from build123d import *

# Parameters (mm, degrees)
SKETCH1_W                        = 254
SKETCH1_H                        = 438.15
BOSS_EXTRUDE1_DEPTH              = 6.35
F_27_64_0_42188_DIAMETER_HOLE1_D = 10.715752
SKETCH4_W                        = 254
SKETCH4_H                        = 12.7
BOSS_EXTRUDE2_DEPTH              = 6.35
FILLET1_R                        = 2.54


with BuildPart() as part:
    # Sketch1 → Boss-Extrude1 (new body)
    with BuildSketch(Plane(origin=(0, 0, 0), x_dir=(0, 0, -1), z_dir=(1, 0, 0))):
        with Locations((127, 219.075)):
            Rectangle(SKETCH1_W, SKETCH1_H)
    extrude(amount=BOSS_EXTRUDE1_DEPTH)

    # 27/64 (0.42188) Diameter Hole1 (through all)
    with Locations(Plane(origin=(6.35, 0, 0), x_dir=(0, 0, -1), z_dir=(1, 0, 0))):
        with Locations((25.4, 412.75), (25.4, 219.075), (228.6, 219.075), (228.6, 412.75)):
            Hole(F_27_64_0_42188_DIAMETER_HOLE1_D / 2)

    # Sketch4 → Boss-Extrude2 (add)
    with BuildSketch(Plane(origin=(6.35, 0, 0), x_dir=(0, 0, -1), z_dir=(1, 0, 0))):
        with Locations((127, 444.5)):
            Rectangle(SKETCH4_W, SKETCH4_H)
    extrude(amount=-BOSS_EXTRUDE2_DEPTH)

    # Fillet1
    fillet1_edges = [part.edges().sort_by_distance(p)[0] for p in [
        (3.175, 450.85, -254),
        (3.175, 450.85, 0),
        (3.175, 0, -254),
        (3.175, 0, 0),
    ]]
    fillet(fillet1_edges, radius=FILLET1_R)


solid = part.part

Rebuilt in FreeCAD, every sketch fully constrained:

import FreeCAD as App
import Part
import Sketcher
Q = App.Units.Quantity


def edges_at(feature, points):
    """Names of the edges that pass closest to the given points."""
    edges = feature.Shape.Edges
    near = lambda p: min(range(len(edges)), key=lambda i: edges[i].distToShape(Part.Vertex(*p))[0])
    return sorted({f"Edge{near(p) + 1}" for p in points})


def add_polygon(sketch, points):
    """Adds a closed chain of lines whose ends are joined by coincident constraints."""
    first, n = sketch.GeometryCount, len(points)
    for a, b in zip(points, points[1:] + points[:1]):
        sketch.addGeometry(Part.LineSegment(App.Vector(*a, 0), App.Vector(*b, 0)), False)
    for i in range(n):
        sketch.addConstraint(Sketcher.Constraint("Coincident", first + i, 2, first + (i + 1) % n, 1))

doc = App.newDocument("Part")
params = doc.addObject("Spreadsheet::Sheet", "Params")
for row, (alias, value) in enumerate([
    ("sketch1_height", "10 in"),
    ("sketch1_width", "17.25 in"),
    ("pad1_length", "0.25 in"),
    ("hole_diameter", "10.715752 mm"),
    ("sketch3_height", "10 in"),
    ("sketch3_width", "0.5 in"),
    ("pad2_length", "0.25 in"),
    ("fillet_radius", "0.1 in"),
], start=1):
    params.set(f"A{row}", alias)
    params.set(f"B{row}", "=" + value)
    params.setAlias(f"B{row}", alias)

body = doc.addObject("PartDesign::Body", "Body")

sketch1 = doc.addObject("Sketcher::SketchObject", "Sketch")
body.addObject(sketch1)
sketch1.AttachmentSupport = (doc.YZ_Plane, [""])
sketch1.MapMode = "FlatFace"
add_polygon(sketch1, [(438, 0), (0, 0), (0, -254), (438, -254)])
sketch1.addConstraint(Sketcher.Constraint("Horizontal", 0))
sketch1.addConstraint(Sketcher.Constraint("Vertical", 1))
sketch1.addConstraint(Sketcher.Constraint("Horizontal", 2))
sketch1.addConstraint(Sketcher.Constraint("Vertical", 3))
sketch1.addConstraint(Sketcher.Constraint("Coincident", 0, 2, -1, 1))
sketch1.addConstraint(Sketcher.Constraint("DistanceY", 1, 2, 1, 1, Q("10 in")))
sketch1.addConstraint(Sketcher.Constraint("DistanceX", 0, 2, 0, 1, Q("17.25 in")))
sketch1.setExpression("Constraints[9]", "Params.sketch1_height")
sketch1.setExpression("Constraints[10]", "Params.sketch1_width")
pad1 = doc.addObject("PartDesign::Pad", "Pad")
body.addObject(pad1)
pad1.Profile = sketch1
pad1.setExpression("Length", "Params.pad1_length")

sketch2 = doc.addObject("Sketcher::SketchObject", "Sketch001")
body.addObject(sketch2)
sketch2.AttachmentSupport = (doc.YZ_Plane, [""])
sketch2.MapMode = "FlatFace"
sketch2.AttachmentOffset = App.Placement(App.Vector(0, 0, 0.25 * 25.4), App.Rotation())
sketch2.addGeometry(Part.Circle(App.Vector(413, -25, 0), App.Vector(0, 0, 1), 5), False)
sketch2.addGeometry(Part.Circle(App.Vector(219, -25, 0), App.Vector(0, 0, 1), 5), False)
sketch2.addGeometry(Part.Circle(App.Vector(219, -229, 0), App.Vector(0, 0, 1), 5), False)
sketch2.addGeometry(Part.Circle(App.Vector(413, -229, 0), App.Vector(0, 0, 1), 5), False)
sketch2.addConstraint(Sketcher.Constraint("Equal", 0, 1))
sketch2.addConstraint(Sketcher.Constraint("Equal", 1, 2))
sketch2.addConstraint(Sketcher.Constraint("Equal", 2, 3))
sketch2.addConstraint(Sketcher.Constraint("Horizontal", 0, 3, 1, 3))
sketch2.addConstraint(Sketcher.Constraint("Horizontal", 2, 3, 3, 3))
sketch2.addConstraint(Sketcher.Constraint("Vertical", 1, 3, 2, 3))
sketch2.addConstraint(Sketcher.Constraint("Vertical", 0, 3, 3, 3))
sketch2.addConstraint(Sketcher.Constraint("DistanceY", 0, 3, -1, 1, Q("1 in")))
sketch2.addConstraint(Sketcher.Constraint("DistanceY", 2, 3, -1, 1, Q("9 in")))
sketch2.addConstraint(Sketcher.Constraint("DistanceX", -1, 1, 0, 3, Q("16.25 in")))
sketch2.addConstraint(Sketcher.Constraint("DistanceX", -1, 1, 1, 3, Q("8.625 in")))
sketch2.addConstraint(Sketcher.Constraint("Diameter", 0, Q("10.715752 mm")))
doc.recompute()
hole = doc.addObject("PartDesign::Hole", "Hole")
body.addObject(hole)
hole.Profile = sketch2
hole.ThreadType = "None"
hole.setExpression("Diameter", "Params.hole_diameter")
hole.DepthType = "ThroughAll"

sketch3 = doc.addObject("Sketcher::SketchObject", "Sketch002")
body.addObject(sketch3)
sketch3.AttachmentSupport = (doc.YZ_Plane, [""])
sketch3.MapMode = "FlatFace"
sketch3.AttachmentOffset = App.Placement(App.Vector(0, 0, 0.25 * 25.4), App.Rotation())
add_polygon(sketch3, [(451, 0), (438, 0), (438, -254), (451, -254)])
sketch3.addConstraint(Sketcher.Constraint("Horizontal", 0))
sketch3.addConstraint(Sketcher.Constraint("Vertical", 1))
sketch3.addConstraint(Sketcher.Constraint("Horizontal", 2))
sketch3.addConstraint(Sketcher.Constraint("Vertical", 3))
sketch3.addConstraint(Sketcher.Constraint("PointOnObject", 0, 2, -1))
sketch3.addConstraint(Sketcher.Constraint("DistanceY", 1, 2, 1, 1, Q("10 in")))
sketch3.addConstraint(Sketcher.Constraint("DistanceX", 0, 2, 0, 1, Q("0.5 in")))
sketch3.addConstraint(Sketcher.Constraint("DistanceX", -1, 1, 0, 2, Q("17.25 in")))
sketch3.setExpression("Constraints[9]", "Params.sketch3_height")
sketch3.setExpression("Constraints[10]", "Params.sketch3_width")
pad2 = doc.addObject("PartDesign::Pad", "Pad001")
body.addObject(pad2)
pad2.Profile = sketch3
pad2.setExpression("Length", "Params.pad2_length")
pad2.Reversed = True
doc.recompute()

fillet = doc.addObject("PartDesign::Fillet", "Fillet")
body.addObject(fillet)
fillet.Base = (pad2, edges_at(pad2, [
    (3.175, 450.85, -254),
    (3.175, 450.85, 0),
    (3.175, 0, -254),
    (3.175, 0, 0),
]))
fillet.setExpression("Radius", "Params.fillet_radius")

doc.recompute()
